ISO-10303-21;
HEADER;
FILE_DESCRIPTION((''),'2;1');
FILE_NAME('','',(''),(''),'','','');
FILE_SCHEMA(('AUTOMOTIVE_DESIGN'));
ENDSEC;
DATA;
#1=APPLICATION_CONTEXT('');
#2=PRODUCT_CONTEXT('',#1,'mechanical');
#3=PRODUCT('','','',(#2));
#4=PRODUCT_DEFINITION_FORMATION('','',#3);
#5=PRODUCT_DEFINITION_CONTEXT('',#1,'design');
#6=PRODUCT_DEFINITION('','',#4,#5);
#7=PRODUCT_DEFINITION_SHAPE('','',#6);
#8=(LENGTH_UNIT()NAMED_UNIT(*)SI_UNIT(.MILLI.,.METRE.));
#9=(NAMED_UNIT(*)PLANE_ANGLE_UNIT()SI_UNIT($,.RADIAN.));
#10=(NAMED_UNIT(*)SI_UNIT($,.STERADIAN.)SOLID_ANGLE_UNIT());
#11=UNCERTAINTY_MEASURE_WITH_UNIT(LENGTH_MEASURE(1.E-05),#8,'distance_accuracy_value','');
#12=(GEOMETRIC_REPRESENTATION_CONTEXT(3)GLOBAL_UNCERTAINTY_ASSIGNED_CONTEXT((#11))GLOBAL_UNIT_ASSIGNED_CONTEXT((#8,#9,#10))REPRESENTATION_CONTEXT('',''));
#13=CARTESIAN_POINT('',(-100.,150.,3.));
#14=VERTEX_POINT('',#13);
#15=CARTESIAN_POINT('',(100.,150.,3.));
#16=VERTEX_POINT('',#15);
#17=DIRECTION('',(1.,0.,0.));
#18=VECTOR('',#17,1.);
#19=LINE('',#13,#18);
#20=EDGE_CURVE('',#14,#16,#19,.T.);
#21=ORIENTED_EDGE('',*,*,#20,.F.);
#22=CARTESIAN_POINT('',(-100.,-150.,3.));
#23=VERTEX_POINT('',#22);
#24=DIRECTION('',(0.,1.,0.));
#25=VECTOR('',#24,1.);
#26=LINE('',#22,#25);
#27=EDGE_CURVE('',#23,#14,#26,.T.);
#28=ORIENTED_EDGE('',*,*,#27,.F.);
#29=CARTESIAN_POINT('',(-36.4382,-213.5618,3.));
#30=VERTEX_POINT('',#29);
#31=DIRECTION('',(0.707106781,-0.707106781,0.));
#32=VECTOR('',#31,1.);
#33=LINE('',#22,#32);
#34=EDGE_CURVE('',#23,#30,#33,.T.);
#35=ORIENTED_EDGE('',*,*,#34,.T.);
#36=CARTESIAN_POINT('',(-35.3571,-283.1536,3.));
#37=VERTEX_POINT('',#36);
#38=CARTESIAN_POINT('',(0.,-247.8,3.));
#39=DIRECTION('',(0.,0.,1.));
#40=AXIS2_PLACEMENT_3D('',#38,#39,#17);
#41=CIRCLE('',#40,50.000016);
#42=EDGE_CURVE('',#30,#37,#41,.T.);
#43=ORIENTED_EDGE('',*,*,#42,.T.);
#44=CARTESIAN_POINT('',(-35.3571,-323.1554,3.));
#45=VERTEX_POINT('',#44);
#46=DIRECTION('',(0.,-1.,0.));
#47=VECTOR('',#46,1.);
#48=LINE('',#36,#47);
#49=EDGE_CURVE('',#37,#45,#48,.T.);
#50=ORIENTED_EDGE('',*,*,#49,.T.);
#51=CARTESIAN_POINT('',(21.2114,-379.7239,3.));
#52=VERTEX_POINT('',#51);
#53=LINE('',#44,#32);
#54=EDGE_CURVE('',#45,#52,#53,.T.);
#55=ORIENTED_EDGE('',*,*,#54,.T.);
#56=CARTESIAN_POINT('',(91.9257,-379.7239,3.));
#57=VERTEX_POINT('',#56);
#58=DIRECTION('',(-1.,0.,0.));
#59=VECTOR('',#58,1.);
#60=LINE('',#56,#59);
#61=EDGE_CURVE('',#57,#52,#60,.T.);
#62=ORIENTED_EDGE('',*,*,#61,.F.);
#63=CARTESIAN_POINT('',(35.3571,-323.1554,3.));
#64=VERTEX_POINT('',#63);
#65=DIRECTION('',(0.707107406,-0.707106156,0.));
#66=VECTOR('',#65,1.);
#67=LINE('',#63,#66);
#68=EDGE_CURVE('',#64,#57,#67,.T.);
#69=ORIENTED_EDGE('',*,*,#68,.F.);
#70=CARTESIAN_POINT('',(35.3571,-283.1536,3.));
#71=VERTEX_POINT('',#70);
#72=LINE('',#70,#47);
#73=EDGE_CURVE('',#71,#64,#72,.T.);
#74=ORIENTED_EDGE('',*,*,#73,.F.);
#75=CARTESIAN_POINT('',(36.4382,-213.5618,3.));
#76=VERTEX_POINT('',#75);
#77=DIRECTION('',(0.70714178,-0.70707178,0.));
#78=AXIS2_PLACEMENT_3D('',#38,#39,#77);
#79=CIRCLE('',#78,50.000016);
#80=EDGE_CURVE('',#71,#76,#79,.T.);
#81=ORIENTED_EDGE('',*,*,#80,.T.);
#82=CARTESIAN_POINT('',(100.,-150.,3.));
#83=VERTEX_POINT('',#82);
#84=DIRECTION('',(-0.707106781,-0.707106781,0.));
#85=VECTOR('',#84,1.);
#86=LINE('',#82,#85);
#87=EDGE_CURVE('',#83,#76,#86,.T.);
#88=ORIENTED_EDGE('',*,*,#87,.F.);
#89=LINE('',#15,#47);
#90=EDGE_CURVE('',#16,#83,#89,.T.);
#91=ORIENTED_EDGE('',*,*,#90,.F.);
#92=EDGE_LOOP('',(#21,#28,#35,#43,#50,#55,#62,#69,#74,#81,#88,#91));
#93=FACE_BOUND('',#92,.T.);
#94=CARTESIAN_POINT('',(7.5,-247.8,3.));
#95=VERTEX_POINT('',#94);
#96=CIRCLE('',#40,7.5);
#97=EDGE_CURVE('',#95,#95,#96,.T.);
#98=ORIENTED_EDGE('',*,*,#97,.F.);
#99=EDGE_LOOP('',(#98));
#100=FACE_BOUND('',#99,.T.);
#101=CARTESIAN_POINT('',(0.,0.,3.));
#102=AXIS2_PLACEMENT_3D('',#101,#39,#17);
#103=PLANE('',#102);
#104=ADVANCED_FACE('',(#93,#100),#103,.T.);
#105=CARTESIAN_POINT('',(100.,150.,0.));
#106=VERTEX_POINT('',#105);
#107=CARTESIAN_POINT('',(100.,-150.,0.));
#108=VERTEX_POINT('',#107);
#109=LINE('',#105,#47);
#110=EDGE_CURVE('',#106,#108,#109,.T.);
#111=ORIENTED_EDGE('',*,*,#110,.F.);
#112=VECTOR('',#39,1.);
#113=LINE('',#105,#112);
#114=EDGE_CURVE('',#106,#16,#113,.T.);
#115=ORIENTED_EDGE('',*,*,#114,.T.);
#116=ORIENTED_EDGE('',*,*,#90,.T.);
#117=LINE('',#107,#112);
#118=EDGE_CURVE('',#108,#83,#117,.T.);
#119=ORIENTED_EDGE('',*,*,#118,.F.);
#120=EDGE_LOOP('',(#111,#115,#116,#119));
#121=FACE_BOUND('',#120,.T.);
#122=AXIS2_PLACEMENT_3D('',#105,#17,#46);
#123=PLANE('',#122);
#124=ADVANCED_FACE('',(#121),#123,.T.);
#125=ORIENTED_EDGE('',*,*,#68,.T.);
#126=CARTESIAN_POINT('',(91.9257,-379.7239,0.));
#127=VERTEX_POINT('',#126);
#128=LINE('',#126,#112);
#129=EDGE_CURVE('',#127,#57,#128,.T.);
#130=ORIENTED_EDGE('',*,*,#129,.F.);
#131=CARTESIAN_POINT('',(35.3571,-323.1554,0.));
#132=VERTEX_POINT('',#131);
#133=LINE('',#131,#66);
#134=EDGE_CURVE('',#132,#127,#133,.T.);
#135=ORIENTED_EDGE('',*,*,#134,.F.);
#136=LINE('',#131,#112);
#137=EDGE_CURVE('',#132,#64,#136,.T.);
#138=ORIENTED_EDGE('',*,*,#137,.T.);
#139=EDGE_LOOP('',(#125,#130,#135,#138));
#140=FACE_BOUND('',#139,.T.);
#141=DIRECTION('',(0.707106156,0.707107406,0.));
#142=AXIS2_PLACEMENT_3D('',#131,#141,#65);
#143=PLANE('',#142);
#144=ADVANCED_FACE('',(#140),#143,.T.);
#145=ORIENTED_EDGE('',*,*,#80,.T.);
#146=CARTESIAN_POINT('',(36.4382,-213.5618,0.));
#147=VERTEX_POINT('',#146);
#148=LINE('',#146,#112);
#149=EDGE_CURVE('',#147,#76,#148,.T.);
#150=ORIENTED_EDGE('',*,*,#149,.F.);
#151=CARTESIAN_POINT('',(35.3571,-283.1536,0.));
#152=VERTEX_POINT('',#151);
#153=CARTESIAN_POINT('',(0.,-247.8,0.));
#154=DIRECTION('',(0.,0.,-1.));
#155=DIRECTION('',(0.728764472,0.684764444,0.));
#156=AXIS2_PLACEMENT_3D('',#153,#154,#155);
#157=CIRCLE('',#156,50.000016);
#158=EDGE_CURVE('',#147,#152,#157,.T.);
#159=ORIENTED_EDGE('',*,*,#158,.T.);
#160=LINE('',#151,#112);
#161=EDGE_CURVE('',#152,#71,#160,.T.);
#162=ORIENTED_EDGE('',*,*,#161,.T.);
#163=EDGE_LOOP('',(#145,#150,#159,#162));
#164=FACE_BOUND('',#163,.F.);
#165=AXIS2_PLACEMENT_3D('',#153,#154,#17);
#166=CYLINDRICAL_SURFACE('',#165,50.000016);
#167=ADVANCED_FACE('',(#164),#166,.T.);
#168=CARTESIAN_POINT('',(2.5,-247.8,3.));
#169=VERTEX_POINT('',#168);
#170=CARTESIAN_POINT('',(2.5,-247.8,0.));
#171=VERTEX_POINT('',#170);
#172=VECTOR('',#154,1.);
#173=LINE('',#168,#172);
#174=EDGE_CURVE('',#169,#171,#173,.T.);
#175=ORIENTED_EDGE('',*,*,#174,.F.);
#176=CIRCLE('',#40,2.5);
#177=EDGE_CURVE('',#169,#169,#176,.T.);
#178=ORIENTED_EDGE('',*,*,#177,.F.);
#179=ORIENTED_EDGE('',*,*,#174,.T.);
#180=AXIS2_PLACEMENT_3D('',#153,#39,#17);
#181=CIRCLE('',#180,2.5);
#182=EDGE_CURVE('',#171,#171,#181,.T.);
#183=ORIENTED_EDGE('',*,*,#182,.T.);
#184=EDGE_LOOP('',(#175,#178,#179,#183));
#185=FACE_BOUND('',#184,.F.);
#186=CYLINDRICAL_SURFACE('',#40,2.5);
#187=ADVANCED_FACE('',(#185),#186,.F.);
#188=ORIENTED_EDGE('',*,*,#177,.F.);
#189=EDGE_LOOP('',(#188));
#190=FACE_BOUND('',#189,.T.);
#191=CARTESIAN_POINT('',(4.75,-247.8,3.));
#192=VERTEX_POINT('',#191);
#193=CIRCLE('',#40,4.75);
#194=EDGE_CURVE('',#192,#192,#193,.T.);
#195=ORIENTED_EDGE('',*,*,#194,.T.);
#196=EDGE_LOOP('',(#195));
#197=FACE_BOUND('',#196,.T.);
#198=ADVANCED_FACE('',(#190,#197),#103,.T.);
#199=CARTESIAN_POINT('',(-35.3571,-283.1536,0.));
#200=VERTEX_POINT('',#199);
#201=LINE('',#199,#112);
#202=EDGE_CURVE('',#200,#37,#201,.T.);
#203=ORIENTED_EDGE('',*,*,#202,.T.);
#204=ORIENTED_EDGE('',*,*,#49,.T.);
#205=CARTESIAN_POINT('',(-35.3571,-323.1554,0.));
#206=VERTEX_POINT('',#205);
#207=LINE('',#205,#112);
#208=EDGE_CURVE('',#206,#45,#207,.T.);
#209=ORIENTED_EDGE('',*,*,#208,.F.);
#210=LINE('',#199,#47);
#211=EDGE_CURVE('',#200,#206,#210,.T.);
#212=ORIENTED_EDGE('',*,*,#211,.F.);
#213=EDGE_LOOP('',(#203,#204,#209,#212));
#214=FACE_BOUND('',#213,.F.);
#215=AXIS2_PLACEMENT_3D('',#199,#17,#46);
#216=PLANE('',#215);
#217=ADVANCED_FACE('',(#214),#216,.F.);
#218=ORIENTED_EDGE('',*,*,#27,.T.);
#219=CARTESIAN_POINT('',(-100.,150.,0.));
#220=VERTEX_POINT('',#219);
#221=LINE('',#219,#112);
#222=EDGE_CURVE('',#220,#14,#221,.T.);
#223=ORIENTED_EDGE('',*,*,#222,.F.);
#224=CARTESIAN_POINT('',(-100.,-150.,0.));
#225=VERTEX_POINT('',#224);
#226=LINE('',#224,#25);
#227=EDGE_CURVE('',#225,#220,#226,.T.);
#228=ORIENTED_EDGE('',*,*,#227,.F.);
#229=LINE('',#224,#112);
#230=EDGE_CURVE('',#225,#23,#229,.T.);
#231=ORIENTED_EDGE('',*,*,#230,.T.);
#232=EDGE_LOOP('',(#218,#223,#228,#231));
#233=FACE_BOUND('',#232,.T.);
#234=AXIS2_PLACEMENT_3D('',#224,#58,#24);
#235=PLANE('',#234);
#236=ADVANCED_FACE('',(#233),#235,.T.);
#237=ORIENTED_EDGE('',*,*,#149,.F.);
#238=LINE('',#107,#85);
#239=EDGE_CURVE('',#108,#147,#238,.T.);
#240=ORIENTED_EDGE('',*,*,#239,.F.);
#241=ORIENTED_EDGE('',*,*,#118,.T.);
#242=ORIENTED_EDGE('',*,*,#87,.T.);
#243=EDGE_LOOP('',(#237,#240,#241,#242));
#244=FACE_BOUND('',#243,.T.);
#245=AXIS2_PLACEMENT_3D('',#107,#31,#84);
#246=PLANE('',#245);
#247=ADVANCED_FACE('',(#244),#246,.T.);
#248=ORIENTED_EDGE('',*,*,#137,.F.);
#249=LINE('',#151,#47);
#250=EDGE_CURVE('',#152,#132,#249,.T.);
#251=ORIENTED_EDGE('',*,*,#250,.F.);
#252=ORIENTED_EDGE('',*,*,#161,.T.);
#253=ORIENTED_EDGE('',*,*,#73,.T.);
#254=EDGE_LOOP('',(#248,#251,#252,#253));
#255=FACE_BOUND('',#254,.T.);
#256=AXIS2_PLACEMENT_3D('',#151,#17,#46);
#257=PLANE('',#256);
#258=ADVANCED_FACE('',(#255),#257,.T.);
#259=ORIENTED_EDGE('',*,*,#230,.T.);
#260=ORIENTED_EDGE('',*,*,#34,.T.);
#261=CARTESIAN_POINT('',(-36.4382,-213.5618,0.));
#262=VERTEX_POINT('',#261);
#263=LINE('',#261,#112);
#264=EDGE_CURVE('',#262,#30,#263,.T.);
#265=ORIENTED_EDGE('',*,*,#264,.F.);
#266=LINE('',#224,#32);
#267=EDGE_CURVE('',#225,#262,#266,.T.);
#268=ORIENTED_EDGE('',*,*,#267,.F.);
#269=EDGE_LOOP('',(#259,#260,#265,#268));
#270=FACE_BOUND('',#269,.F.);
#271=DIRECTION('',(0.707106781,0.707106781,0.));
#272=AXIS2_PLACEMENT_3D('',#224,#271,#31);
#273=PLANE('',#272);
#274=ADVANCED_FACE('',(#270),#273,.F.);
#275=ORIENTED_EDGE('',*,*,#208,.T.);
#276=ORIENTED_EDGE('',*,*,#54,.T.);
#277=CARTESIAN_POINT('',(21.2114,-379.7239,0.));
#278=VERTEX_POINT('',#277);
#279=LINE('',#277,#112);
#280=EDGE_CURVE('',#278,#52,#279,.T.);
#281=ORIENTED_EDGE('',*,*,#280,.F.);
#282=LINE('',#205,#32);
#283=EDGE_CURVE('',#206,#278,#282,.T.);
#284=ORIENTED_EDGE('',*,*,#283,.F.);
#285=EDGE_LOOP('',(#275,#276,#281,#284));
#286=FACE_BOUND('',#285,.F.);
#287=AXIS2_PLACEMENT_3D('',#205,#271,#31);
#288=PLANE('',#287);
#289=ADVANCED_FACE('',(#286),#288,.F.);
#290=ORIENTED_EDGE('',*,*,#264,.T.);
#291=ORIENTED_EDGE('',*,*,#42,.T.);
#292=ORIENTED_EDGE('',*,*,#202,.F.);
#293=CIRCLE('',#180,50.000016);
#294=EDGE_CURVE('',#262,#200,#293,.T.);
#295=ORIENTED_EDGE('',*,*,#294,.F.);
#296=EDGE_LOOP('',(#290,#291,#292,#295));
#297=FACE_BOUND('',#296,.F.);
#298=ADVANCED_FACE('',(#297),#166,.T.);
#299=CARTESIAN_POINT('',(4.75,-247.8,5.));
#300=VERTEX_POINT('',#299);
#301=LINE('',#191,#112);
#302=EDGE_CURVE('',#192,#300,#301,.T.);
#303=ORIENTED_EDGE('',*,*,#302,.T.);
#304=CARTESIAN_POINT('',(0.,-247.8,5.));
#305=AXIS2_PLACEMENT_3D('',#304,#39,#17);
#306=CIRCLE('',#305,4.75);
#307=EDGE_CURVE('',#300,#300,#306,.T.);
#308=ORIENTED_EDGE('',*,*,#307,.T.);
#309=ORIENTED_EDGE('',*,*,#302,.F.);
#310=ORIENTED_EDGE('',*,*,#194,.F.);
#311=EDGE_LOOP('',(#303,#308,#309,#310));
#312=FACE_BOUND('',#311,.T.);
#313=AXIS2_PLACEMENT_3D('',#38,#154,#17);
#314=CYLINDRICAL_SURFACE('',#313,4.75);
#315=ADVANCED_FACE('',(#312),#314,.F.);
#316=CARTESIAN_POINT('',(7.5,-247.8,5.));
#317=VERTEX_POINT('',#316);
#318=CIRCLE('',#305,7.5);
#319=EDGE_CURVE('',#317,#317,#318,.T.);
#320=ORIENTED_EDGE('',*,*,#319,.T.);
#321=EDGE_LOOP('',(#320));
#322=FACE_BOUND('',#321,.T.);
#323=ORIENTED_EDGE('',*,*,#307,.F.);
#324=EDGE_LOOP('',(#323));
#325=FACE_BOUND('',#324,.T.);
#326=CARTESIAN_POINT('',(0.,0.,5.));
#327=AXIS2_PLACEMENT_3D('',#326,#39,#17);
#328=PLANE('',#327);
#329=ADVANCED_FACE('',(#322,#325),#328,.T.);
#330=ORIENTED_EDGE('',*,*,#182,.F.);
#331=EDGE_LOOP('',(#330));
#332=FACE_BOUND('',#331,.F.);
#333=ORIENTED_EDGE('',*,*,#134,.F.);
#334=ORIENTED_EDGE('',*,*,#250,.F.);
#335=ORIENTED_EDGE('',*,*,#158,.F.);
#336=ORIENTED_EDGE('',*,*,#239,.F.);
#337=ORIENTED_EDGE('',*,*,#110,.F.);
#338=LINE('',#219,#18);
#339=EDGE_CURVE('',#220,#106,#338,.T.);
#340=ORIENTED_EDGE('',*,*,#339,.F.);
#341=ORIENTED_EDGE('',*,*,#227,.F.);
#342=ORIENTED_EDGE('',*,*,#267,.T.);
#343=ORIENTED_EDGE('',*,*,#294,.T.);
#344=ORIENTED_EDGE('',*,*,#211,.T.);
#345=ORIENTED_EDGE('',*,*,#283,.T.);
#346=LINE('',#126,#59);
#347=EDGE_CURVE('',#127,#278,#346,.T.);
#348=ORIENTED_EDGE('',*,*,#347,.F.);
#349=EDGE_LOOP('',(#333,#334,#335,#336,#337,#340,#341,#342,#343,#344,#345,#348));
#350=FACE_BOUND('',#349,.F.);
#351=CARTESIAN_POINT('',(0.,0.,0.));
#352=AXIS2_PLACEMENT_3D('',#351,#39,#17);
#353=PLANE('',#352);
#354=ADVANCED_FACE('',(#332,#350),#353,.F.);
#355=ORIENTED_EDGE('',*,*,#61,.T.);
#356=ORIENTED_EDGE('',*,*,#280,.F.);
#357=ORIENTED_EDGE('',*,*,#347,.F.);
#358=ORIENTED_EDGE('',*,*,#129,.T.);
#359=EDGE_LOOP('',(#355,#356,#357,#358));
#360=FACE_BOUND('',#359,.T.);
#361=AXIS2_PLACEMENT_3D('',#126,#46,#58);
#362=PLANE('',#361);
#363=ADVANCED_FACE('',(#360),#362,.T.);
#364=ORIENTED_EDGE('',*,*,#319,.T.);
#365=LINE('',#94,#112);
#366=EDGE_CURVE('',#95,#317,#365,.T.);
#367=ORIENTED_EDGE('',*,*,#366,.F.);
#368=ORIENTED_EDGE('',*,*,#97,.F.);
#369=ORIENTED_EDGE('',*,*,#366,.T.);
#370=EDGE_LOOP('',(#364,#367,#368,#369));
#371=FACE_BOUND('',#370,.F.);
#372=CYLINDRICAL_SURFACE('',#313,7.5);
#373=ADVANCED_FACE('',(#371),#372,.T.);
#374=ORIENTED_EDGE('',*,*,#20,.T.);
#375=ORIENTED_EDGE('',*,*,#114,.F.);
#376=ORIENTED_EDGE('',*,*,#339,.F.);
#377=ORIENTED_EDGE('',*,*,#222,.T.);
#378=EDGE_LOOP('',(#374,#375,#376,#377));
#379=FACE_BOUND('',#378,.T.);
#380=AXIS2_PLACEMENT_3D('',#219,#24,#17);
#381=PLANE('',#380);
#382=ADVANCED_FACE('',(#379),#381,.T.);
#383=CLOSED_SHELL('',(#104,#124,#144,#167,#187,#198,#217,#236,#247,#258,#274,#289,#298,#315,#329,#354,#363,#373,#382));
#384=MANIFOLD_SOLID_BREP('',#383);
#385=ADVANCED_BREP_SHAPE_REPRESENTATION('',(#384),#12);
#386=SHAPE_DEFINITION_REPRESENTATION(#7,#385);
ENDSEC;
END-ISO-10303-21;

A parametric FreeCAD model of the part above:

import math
import FreeCAD as App
import Part
import Sketcher
from FreeCAD import Vector
Q = App.Units.Quantity

doc = App.newDocument("Part")
body = doc.addObject("PartDesign::Body", "Body")

# Sketch on XY plane
sketch1 = body.newObject("Sketcher::SketchObject", "Sketch")
sketch1.AttachmentSupport = (doc.getObject("XY_Plane"), [""])
sketch1.MapMode = "FlatFace"
sketch1.addGeometry([
    Part.LineSegment(Vector(100, 150, 0), Vector(-100, 150, 0)),  # 0
    Part.LineSegment(Vector(-100, 150, 0), Vector(-100, -150, 0)),  # 1
    Part.LineSegment(Vector(-100, -150, 0), Vector(-36, -214, 0)),  # 2
    Part.ArcOfCircle(Part.Circle(Vector(0, -248, 0), Vector(0, 0, 1), 50), math.radians(137), math.radians(225)),  # 3
    Part.LineSegment(Vector(-35, -283, 0), Vector(-35, -323, 0)),  # 4
    Part.LineSegment(Vector(-35, -323, 0), Vector(21, -380, 0)),  # 5
    Part.LineSegment(Vector(21, -380, 0), Vector(92, -380, 0)),  # 6
    Part.LineSegment(Vector(92, -380, 0), Vector(35, -323, 0)),  # 7
    Part.LineSegment(Vector(35, -323, 0), Vector(35, -283, 0)),  # 8
    Part.ArcOfCircle(Part.Circle(Vector(0, -248, 0), Vector(0, 0, 1), 50), math.radians(-45), math.radians(43)),  # 9
    Part.LineSegment(Vector(36, -214, 0), Vector(100, -150, 0)),  # 10
    Part.LineSegment(Vector(100, -150, 0), Vector(100, 150, 0)),  # 11
], False)
sketch1.addConstraint([
    Sketcher.Constraint("Coincident", 0, 2, 1, 1),
    Sketcher.Constraint("Coincident", 1, 2, 2, 1),
    Sketcher.Constraint("Coincident", 2, 2, 3, 1),
    Sketcher.Constraint("Coincident", 3, 2, 4, 1),
    Sketcher.Constraint("Coincident", 4, 2, 5, 1),
    Sketcher.Constraint("Coincident", 5, 2, 6, 1),
    Sketcher.Constraint("Coincident", 6, 2, 7, 1),
    Sketcher.Constraint("Coincident", 7, 2, 8, 1),
    Sketcher.Constraint("Coincident", 8, 2, 9, 1),
    Sketcher.Constraint("Coincident", 9, 2, 10, 1),
    Sketcher.Constraint("Coincident", 10, 2, 11, 1),
    Sketcher.Constraint("Coincident", 11, 2, 0, 1),
    Sketcher.Constraint("Horizontal", 0),
    Sketcher.Constraint("Vertical", 1),
    Sketcher.Constraint("Vertical", 4),
    Sketcher.Constraint("Horizontal", 6),
    Sketcher.Constraint("Vertical", 8),
    Sketcher.Constraint("Vertical", 11),
    Sketcher.Constraint("Coincident", 9, 3, 3, 3),
    Sketcher.Constraint("Equal", 3, 9),
    Sketcher.Constraint("Symmetric", 0, 2, 10, 2, -1, 1),
    Sketcher.Constraint("Symmetric", 4, 2, 7, 2, -2),
    Sketcher.Constraint("Symmetric", 2, 2, 9, 2, -2),
    Sketcher.Constraint("Parallel", 2, 5),
    Sketcher.Constraint("Parallel", 5, 7),
    Sketcher.Constraint("Perpendicular", 7, 10),
    Sketcher.Constraint("Horizontal", 1, 2, 10, 2),
    Sketcher.Constraint("Radius", 3, Q("50 mm")),
    Sketcher.Constraint("DistanceX", 0, 2, 0, 1, Q("200 mm")),
    Sketcher.Constraint("DistanceY", 1, 2, 1, 1, Q("300 mm")),
    Sketcher.Constraint("Distance", 5, Q("80 mm")),
    Sketcher.Constraint("DistanceY", 3, 3, -1, 1, Q("247.8 mm")),
    Sketcher.Constraint("DistanceX", 6, 1, 6, 2, Q("70.7143 mm")),
    Sketcher.Constraint("DistanceY", 4, 2, 4, 1, Q("40.0018 mm")),
])
pad1 = body.newObject("PartDesign::Pad", "Pad")
pad1.Profile = sketch1
pad1.Length = 3

# Sketch on XY plane
sketch2 = body.newObject("Sketcher::SketchObject", "Sketch001")
sketch2.AttachmentSupport = (doc.getObject("XY_Plane"), [""])
sketch2.MapMode = "FlatFace"
sketch2.AttachmentOffset = App.Placement(Vector(0, 0, 3), App.Rotation())
sketch2.addGeometry(Part.Circle(Vector(0, -247.8, 0), Vector(0, 0, 1), 2.5), False)
sketch2.addConstraint([
    Sketcher.Constraint("PointOnObject", 0, 3, -2),
    Sketcher.Constraint("Diameter", 0, Q("5 mm")),
    Sketcher.Constraint("DistanceY", 0, 3, -1, 1, Q("247.8 mm")),
])
pocket1 = body.newObject("PartDesign::Pocket", "Pocket")
pocket1.Profile = sketch2
pocket1.Length = 3

# Sketch on XY plane
sketch3 = body.newObject("Sketcher::SketchObject", "Sketch002")
sketch3.AttachmentSupport = (doc.getObject("XY_Plane"), [""])
sketch3.MapMode = "FlatFace"
sketch3.AttachmentOffset = App.Placement(Vector(0, 0, 3), App.Rotation())
sketch3.addGeometry([
    Part.Circle(Vector(0, -247.8, 0), Vector(0, 0, 1), 7.5),
    Part.Circle(Vector(0, -247.8, 0), Vector(0, 0, 1), 4.8),
], False)
sketch3.addConstraint([
    Sketcher.Constraint("Coincident", 1, 3, 0, 3),
    Sketcher.Constraint("PointOnObject", 0, 3, -2),
    Sketcher.Constraint("Diameter", 0, Q("15 mm")),
    Sketcher.Constraint("Diameter", 1, Q("9.5 mm")),
    Sketcher.Constraint("DistanceY", 0, 3, -1, 1, Q("247.8 mm")),
])
pad2 = body.newObject("PartDesign::Pad", "Pad001")
pad2.Profile = sketch3
pad2.Length = 2

doc.recompute()
